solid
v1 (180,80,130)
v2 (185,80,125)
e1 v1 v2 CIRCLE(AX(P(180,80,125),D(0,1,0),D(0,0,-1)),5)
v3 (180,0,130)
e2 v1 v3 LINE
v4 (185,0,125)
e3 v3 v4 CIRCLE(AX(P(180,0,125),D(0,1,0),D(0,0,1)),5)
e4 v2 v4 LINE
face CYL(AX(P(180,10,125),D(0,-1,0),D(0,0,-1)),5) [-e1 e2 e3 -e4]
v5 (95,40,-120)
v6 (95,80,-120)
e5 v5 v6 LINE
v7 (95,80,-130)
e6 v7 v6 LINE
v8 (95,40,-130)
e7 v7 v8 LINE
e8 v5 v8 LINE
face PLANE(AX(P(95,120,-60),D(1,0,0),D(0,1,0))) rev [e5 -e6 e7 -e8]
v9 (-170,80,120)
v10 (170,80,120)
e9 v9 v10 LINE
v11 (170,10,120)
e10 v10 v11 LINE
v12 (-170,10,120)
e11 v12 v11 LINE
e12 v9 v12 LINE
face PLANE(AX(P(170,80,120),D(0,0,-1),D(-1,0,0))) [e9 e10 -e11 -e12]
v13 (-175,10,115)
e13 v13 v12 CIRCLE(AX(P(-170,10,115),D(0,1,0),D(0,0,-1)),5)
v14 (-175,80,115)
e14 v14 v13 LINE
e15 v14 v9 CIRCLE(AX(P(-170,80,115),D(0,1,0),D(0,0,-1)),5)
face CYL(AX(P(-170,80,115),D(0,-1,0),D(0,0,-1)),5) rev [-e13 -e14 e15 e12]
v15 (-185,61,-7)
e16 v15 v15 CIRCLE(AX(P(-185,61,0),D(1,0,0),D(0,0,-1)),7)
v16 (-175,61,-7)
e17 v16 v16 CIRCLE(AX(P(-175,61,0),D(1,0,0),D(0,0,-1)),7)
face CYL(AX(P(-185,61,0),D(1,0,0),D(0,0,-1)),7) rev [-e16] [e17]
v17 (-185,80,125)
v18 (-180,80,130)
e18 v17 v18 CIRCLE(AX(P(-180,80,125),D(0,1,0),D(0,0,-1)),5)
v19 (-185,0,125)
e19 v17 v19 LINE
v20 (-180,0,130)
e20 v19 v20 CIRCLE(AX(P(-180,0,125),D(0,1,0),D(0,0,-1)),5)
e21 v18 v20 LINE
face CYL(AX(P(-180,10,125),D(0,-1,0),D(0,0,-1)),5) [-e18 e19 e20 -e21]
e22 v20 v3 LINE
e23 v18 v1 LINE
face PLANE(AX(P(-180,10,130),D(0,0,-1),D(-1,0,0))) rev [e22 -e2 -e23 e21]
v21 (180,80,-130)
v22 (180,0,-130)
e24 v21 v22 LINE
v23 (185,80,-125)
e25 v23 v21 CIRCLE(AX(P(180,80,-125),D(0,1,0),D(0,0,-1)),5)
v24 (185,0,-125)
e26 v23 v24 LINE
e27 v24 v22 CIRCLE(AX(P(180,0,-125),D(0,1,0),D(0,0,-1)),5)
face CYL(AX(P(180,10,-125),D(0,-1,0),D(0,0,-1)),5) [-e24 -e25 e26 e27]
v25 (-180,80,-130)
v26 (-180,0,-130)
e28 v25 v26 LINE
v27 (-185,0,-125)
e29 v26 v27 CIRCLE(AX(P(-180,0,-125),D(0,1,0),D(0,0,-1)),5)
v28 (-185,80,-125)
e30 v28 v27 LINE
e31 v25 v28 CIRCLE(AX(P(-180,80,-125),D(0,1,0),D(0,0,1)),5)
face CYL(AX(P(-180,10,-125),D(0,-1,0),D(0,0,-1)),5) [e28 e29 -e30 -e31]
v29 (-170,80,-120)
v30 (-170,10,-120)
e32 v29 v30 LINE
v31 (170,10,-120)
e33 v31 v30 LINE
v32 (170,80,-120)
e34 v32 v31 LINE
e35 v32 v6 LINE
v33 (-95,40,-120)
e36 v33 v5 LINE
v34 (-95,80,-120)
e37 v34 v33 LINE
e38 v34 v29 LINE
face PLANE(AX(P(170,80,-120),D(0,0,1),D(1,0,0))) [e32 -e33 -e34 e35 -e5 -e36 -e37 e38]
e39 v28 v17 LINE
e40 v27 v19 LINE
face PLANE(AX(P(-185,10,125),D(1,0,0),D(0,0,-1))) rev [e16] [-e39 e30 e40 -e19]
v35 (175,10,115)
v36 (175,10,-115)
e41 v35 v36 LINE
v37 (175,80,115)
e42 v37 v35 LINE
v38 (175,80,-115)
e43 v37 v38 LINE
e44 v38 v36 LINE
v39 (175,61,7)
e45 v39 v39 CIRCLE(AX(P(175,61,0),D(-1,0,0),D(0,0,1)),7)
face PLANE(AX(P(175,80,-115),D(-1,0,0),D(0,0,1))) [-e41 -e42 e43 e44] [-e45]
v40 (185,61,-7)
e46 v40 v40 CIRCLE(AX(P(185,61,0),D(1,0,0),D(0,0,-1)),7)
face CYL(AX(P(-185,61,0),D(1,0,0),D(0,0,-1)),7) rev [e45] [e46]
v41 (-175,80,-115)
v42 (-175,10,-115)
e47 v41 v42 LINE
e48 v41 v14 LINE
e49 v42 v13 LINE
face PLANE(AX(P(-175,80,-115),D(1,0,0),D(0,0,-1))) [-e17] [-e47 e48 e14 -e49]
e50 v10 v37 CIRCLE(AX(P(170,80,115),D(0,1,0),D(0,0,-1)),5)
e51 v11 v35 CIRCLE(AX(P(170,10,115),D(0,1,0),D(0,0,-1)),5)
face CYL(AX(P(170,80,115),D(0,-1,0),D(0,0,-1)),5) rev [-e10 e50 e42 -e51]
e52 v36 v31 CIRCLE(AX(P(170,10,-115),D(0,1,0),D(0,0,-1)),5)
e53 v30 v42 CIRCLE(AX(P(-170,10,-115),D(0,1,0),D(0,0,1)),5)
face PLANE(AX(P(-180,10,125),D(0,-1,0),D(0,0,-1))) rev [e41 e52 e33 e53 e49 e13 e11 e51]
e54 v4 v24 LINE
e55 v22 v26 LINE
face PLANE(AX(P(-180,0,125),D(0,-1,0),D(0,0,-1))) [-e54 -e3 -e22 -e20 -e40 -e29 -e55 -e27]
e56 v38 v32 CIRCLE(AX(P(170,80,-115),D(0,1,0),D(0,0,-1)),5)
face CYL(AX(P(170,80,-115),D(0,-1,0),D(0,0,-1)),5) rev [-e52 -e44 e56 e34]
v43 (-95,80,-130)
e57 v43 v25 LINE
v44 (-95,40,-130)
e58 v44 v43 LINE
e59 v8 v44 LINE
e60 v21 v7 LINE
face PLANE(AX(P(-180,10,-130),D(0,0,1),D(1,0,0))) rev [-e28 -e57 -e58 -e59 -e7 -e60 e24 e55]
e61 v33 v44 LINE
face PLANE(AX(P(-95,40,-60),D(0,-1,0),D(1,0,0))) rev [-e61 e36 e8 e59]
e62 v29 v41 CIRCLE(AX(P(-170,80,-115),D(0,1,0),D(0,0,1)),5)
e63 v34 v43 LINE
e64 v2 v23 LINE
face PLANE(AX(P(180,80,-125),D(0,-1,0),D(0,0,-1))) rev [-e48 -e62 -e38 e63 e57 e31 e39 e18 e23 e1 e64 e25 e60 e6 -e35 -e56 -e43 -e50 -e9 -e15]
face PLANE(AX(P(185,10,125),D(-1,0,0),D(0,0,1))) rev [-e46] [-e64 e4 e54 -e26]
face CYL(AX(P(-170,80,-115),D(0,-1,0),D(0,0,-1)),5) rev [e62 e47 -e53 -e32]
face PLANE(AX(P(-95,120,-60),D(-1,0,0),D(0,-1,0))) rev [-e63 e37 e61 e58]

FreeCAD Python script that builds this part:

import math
import FreeCAD as App
import Part
import Sketcher
Q = App.Units.Quantity


def add_polygon(sketch, points):
    """Adds a closed chain of lines whose ends are joined by coincident constraints."""
    first, n = sketch.GeometryCount, len(points)
    for a, b in zip(points, points[1:] + points[:1]):
        sketch.addGeometry(Part.LineSegment(App.Vector(*a, 0), App.Vector(*b, 0)), False)
    for i in range(n):
        sketch.addConstraint(Sketcher.Constraint("Coincident", first + i, 2, first + (i + 1) % n, 1))

doc = App.newDocument("Part")
body = doc.addObject("PartDesign::Body", "Body")

# Sketch on XZ plane
sketch1 = body.newObject("Sketcher::SketchObject", "Sketch")
sketch1.AttachmentSupport = (doc.getObject("XZ_Plane"), [""])
sketch1.MapMode = "FlatFace"
sketch1.addGeometry([
    Part.LineSegment(App.Vector(-180, 130, 0), App.Vector(180, 130, 0)),  # 0
    Part.ArcOfCircle(Part.Circle(App.Vector(180, 125, 0), App.Vector(0, 0, 1), 5), math.radians(0), math.radians(90)),  # 1
    Part.LineSegment(App.Vector(185, 125, 0), App.Vector(185, -125, 0)),  # 2
    Part.ArcOfCircle(Part.Circle(App.Vector(180, -125, 0), App.Vector(0, 0, 1), 5), math.radians(-90), math.radians(0)),  # 3
    Part.LineSegment(App.Vector(180, -130, 0), App.Vector(-180, -130, 0)),  # 4
    Part.ArcOfCircle(Part.Circle(App.Vector(-180, -125, 0), App.Vector(0, 0, 1), 5), math.radians(180), math.radians(270)),  # 5
    Part.LineSegment(App.Vector(-185, -125, 0), App.Vector(-185, 125, 0)),  # 6
    Part.ArcOfCircle(Part.Circle(App.Vector(-180, 125, 0), App.Vector(0, 0, 1), 5), math.radians(90), math.radians(180)),  # 7
], False)
sketch1.addConstraint([
    Sketcher.Constraint("Tangent", 0, 2, 1, 2),
    Sketcher.Constraint("Tangent", 1, 1, 2, 1),
    Sketcher.Constraint("Tangent", 2, 2, 3, 2),
    Sketcher.Constraint("Tangent", 3, 1, 4, 1),
    Sketcher.Constraint("Tangent", 4, 2, 5, 2),
    Sketcher.Constraint("Tangent", 5, 1, 6, 1),
    Sketcher.Constraint("Tangent", 6, 2, 7, 2),
    Sketcher.Constraint("Tangent", 7, 1, 0, 1),
    Sketcher.Constraint("Horizontal", 0),
    Sketcher.Constraint("Vertical", 2),
    Sketcher.Constraint("Horizontal", 4),
    Sketcher.Constraint("Vertical", 6),
    Sketcher.Constraint("Equal", 1, 3),
    Sketcher.Constraint("Equal", 3, 5),
    Sketcher.Constraint("Equal", 5, 7),
    Sketcher.Constraint("Symmetric", 1, 3, 5, 3, -1, 1),
    Sketcher.Constraint("Radius", 1, Q("5 mm")),
    Sketcher.Constraint("DistanceX", 0, 1, 0, 2, Q("360 mm")),
    Sketcher.Constraint("DistanceY", 2, 2, 2, 1, Q("250 mm")),
])
pad1 = body.newObject("PartDesign::Pad", "Pad")
pad1.Profile = sketch1
pad1.Length = 10
pad1.Reversed = True

# Sketch on XZ plane
sketch2 = body.newObject("Sketcher::SketchObject", "Sketch001")
sketch2.AttachmentSupport = (doc.getObject("XZ_Plane"), [""])
sketch2.MapMode = "FlatFace"
sketch2.AttachmentOffset = App.Placement(App.Vector(0, 0, -10), App.Rotation())
sketch2.addGeometry([
    Part.LineSegment(App.Vector(180, -130, 0), App.Vector(-180, -130, 0)),  # 0
    Part.ArcOfCircle(Part.Circle(App.Vector(-180, -125, 0), App.Vector(0, 0, 1), 5), math.radians(180), math.radians(270)),  # 1
    Part.LineSegment(App.Vector(-185, -125, 0), App.Vector(-185, 125, 0)),  # 2
    Part.ArcOfCircle(Part.Circle(App.Vector(-180, 125, 0), App.Vector(0, 0, 1), 5), math.radians(90), math.radians(180)),  # 3
    Part.LineSegment(App.Vector(-180, 130, 0), App.Vector(180, 130, 0)),  # 4
    Part.ArcOfCircle(Part.Circle(App.Vector(180, 125, 0), App.Vector(0, 0, 1), 5), math.radians(0), math.radians(90)),  # 5
    Part.LineSegment(App.Vector(185, 125, 0), App.Vector(185, -125, 0)),  # 6
    Part.ArcOfCircle(Part.Circle(App.Vector(180, -125, 0), App.Vector(0, 0, 1), 5), math.radians(-90), math.radians(0)),  # 7
    Part.LineSegment(App.Vector(-170, -120, 0), App.Vector(170, -120, 0)),  # 8
    Part.ArcOfCircle(Part.Circle(App.Vector(170, -115, 0), App.Vector(0, 0, 1), 5), math.radians(-90), math.radians(0)),  # 9
    Part.LineSegment(App.Vector(175, -115, 0), App.Vector(175, 115, 0)),  # 10
    Part.ArcOfCircle(Part.Circle(App.Vector(170, 115, 0), App.Vector(0, 0, 1), 5), math.radians(0), math.radians(90)),  # 11
    Part.LineSegment(App.Vector(170, 120, 0), App.Vector(-170, 120, 0)),  # 12
    Part.ArcOfCircle(Part.Circle(App.Vector(-170, 115, 0), App.Vector(0, 0, 1), 5), math.radians(90), math.radians(180)),  # 13
    Part.LineSegment(App.Vector(-175, 115, 0), App.Vector(-175, -115, 0)),  # 14
    Part.ArcOfCircle(Part.Circle(App.Vector(-170, -115, 0), App.Vector(0, 0, 1), 5), math.radians(180), math.radians(270)),  # 15
], False)
sketch2.addConstraint([
    Sketcher.Constraint("Tangent", 0, 2, 1, 2),
    Sketcher.Constraint("Tangent", 1, 1, 2, 1),
    Sketcher.Constraint("Tangent", 2, 2, 3, 2),
    Sketcher.Constraint("Tangent", 3, 1, 4, 1),
    Sketcher.Constraint("Tangent", 4, 2, 5, 2),
    Sketcher.Constraint("Tangent", 5, 1, 6, 1),
    Sketcher.Constraint("Tangent", 6, 2, 7, 2),
    Sketcher.Constraint("Tangent", 7, 1, 0, 1),
    Sketcher.Constraint("Tangent", 8, 2, 9, 1),
    Sketcher.Constraint("Tangent", 9, 2, 10, 1),
    Sketcher.Constraint("Tangent", 10, 2, 11, 1),
    Sketcher.Constraint("Tangent", 11, 2, 12, 1),
    Sketcher.Constraint("Tangent", 12, 2, 13, 1),
    Sketcher.Constraint("Tangent", 13, 2, 14, 1),
    Sketcher.Constraint("Tangent", 14, 2, 15, 1),
    Sketcher.Constraint("Tangent", 15, 2, 8, 1),
    Sketcher.Constraint("Horizontal", 0),
    Sketcher.Constraint("Vertical", 2),
    Sketcher.Constraint("Horizontal", 4),
    Sketcher.Constraint("Vertical", 6),
    Sketcher.Constraint("Horizontal", 8),
    Sketcher.Constraint("Vertical", 10),
    Sketcher.Constraint("Horizontal", 12),
    Sketcher.Constraint("Vertical", 14),
    Sketcher.Constraint("Equal", 1, 3),
    Sketcher.Constraint("Equal", 3, 5),
    Sketcher.Constraint("Equal", 5, 7),
    Sketcher.Constraint("Equal", 7, 9),
    Sketcher.Constraint("Equal", 9, 11),
    Sketcher.Constraint("Equal", 11, 13),
    Sketcher.Constraint("Equal", 13, 15),
    Sketcher.Constraint("Symmetric", 1, 3, 5, 3, -1, 1),
    Sketcher.Constraint("Symmetric", 9, 3, 13, 3, -1, 1),
    Sketcher.Constraint("Radius", 1, Q("5 mm")),
    Sketcher.Constraint("DistanceX", 0, 2, 0, 1, Q("360 mm")),
    Sketcher.Constraint("DistanceX", 8, 1, 8, 2, Q("340 mm")),
    Sketcher.Constraint("DistanceY", 2, 1, 2, 2, Q("250 mm")),
    Sketcher.Constraint("DistanceY", 10, 1, 10, 2, Q("230 mm")),
])
pad2 = body.newObject("PartDesign::Pad", "Pad001")
pad2.Profile = sketch2
pad2.Length = 70
pad2.Reversed = True

# Sketch on XY plane
sketch3 = body.newObject("Sketcher::SketchObject", "Sketch002")
sketch3.AttachmentSupport = (doc.getObject("XY_Plane"), [""])
sketch3.MapMode = "FlatFace"
sketch3.AttachmentOffset = App.Placement(App.Vector(0, 0, -130), App.Rotation())
add_polygon(sketch3, [(95, 120), (95, 40), (-95, 40), (-95, 120)])  # lines 0-3
sketch3.addConstraint([
    Sketcher.Constraint("Vertical", 0),
    Sketcher.Constraint("Horizontal", 1),
    Sketcher.Constraint("Vertical", 2),
    Sketcher.Constraint("Horizontal", 3),
    Sketcher.Constraint("DistanceX", 1, 2, 1, 1, Q("190 mm")),
    Sketcher.Constraint("DistanceY", 0, 2, 0, 1, Q("80 mm")),
    Sketcher.Constraint("DistanceX", -1, 1, 0, 2, Q("95 mm")),
    Sketcher.Constraint("DistanceY", -1, 1, 0, 2, Q("40 mm")),
])
pocket1 = body.newObject("PartDesign::Pocket", "Pocket")
pocket1.Profile = sketch3
pocket1.Length = 70
pocket1.Reversed = True

# Sketch on YZ plane
sketch4 = body.newObject("Sketcher::SketchObject", "Sketch003")
sketch4.AttachmentSupport = (doc.getObject("YZ_Plane"), [""])
sketch4.MapMode = "FlatFace"
sketch4.AttachmentOffset = App.Placement(App.Vector(0, 0, 185), App.Rotation())
sketch4.addGeometry(Part.Circle(App.Vector(61, 0, 0), App.Vector(0, 0, 1), 7), False)
sketch4.addConstraint([
    Sketcher.Constraint("PointOnObject", 0, 3, -1),
    Sketcher.Constraint("Diameter", 0, Q("14 mm")),
    Sketcher.Constraint("DistanceX", -1, 1, 0, 3, Q("61 mm")),
])
pocket2 = body.newObject("PartDesign::Pocket", "Pocket001")
pocket2.Profile = sketch4
pocket2.Type = "ThroughAll"

doc.recompute()
